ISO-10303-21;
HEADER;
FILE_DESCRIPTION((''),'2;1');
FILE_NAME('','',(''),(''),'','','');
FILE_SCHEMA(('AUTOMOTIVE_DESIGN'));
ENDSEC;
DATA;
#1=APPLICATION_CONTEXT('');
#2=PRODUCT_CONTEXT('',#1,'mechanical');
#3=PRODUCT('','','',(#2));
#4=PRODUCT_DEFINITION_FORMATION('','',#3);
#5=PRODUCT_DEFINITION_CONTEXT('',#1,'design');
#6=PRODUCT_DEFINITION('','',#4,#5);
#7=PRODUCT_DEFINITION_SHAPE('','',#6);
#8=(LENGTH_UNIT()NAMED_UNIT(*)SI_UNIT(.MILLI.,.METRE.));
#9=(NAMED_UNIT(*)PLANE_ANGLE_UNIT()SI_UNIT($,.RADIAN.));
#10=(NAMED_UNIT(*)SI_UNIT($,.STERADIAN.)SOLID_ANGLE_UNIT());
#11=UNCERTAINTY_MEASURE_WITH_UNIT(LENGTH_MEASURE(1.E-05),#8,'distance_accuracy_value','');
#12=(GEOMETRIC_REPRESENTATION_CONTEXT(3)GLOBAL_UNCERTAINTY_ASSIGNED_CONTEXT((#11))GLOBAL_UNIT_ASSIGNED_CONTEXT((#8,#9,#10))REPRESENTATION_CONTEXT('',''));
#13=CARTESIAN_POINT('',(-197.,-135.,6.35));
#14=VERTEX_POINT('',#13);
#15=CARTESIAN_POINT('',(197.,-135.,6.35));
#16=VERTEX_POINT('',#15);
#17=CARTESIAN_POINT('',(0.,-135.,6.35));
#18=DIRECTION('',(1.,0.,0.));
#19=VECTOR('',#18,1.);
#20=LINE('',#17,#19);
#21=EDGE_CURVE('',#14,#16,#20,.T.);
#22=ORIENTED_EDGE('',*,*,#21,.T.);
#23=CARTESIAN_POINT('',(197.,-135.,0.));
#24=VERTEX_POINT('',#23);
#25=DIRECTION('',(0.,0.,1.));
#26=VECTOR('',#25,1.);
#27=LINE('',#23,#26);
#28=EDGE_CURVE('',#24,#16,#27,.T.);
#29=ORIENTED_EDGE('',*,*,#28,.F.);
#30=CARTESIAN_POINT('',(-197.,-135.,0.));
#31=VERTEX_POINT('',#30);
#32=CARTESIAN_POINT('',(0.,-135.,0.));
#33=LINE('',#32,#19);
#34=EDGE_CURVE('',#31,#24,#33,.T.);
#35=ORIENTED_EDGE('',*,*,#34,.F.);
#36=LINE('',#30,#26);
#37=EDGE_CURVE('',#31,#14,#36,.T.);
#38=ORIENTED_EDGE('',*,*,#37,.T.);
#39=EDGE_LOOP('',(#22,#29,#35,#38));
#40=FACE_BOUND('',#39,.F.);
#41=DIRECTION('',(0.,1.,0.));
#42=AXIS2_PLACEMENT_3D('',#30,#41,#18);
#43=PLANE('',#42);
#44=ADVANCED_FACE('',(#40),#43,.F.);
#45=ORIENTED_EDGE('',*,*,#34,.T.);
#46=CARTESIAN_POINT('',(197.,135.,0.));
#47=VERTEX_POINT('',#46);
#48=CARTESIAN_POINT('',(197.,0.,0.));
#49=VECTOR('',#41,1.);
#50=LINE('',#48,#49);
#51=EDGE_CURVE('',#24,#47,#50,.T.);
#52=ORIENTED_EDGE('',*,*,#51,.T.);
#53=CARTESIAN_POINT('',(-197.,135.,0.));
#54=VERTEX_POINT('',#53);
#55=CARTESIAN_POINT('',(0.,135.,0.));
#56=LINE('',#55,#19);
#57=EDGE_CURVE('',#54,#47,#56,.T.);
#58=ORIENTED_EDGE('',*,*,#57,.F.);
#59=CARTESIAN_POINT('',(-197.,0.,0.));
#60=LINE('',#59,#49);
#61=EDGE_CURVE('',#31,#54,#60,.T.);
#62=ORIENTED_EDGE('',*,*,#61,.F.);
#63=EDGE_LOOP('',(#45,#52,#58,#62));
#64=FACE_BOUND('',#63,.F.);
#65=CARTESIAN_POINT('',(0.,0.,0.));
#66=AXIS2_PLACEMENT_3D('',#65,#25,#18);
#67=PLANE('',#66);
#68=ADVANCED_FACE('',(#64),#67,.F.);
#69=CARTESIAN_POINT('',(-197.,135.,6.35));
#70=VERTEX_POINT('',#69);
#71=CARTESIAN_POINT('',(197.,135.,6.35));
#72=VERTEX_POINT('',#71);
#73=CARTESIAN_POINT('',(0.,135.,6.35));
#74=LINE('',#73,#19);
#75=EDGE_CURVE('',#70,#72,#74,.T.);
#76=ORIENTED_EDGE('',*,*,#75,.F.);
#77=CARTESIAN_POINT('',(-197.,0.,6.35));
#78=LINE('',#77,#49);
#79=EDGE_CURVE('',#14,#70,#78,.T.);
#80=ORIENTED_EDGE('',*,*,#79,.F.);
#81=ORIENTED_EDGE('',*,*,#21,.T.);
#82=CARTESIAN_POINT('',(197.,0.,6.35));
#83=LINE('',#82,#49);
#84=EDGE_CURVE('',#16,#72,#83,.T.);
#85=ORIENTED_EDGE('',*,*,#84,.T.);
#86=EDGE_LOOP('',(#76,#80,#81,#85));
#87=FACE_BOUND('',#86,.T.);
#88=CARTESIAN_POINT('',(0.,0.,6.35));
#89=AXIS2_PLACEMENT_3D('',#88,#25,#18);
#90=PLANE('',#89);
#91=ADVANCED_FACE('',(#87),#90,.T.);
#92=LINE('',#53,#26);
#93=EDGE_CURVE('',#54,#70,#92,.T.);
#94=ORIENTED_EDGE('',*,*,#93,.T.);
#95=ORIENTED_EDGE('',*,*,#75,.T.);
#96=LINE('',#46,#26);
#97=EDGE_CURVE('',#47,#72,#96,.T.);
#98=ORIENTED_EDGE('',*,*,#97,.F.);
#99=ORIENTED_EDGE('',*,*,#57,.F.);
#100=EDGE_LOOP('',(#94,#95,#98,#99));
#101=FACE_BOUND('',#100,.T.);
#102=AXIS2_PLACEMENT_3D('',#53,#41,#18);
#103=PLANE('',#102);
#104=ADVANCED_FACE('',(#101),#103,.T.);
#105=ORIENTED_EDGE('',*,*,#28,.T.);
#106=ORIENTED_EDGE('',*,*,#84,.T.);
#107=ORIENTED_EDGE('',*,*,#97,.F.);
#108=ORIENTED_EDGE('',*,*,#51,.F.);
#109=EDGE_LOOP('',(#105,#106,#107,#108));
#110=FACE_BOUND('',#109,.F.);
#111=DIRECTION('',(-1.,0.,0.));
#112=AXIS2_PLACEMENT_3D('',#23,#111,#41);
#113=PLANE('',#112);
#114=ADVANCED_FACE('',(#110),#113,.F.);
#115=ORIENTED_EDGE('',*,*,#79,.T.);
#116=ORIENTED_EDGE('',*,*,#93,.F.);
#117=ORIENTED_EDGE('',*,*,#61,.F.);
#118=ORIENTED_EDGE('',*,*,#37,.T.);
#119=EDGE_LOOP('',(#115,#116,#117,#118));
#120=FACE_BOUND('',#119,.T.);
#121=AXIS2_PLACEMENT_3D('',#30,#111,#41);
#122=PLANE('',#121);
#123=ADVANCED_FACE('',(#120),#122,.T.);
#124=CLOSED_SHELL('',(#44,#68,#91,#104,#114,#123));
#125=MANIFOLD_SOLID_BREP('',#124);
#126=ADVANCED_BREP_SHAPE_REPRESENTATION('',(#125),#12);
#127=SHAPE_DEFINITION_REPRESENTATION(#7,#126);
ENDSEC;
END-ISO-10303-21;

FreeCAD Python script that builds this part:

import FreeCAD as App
import Part
import Sketcher


def add_polygon(sketch, points):
    """Adds a closed chain of lines whose ends are joined by coincident constraints."""
    first, n = sketch.GeometryCount, len(points)
    for a, b in zip(points, points[1:] + points[:1]):
        sketch.addGeometry(Part.LineSegment(App.Vector(*a, 0), App.Vector(*b, 0)), False)
    for i in range(n):
        sketch.addConstraint(Sketcher.Constraint("Coincident", first + i, 2, first + (i + 1) % n, 1))

doc = App.newDocument("Part")
params = doc.addObject("Spreadsheet::Sheet", "Params")
for row, (alias, value) in enumerate([
    ("sketch1_width", "394 mm"),
    ("sketch1_height", "270 mm"),
    ("pad1_length", "6.35 mm"),
], start=1):
    params.set(f"A{row}", alias)
    params.set(f"B{row}", "=" + value)
    params.setAlias(f"B{row}", alias)

body = doc.addObject("PartDesign::Body", "Body")

# Sketch on XY plane
sketch1 = body.newObject("Sketcher::SketchObject", "Sketch")
sketch1.AttachmentSupport = (doc.getObject("XY_Plane"), [""])
sketch1.MapMode = "FlatFace"
add_polygon(sketch1, [(-197, 135), (-197, -135), (197, -135), (197, 135)])  # lines 0-3
sketch1.addConstraint(Sketcher.Constraint("Vertical", 0))
sketch1.addConstraint(Sketcher.Constraint("Horizontal", 1))
sketch1.addConstraint(Sketcher.Constraint("Vertical", 2))
sketch1.addConstraint(Sketcher.Constraint("Horizontal", 3))
sketch1.addConstraint(Sketcher.Constraint("Symmetric", 0, 2, 2, 2, -1, 1))
sketch1.addConstraint(Sketcher.Constraint("DistanceX", 1, 1, 1, 2, 394.0))
sketch1.addConstraint(Sketcher.Constraint("DistanceY", 0, 2, 0, 1, 270.0))
sketch1.setExpression("Constraints[9]", "Params.sketch1_width")
sketch1.setExpression("Constraints[10]", "Params.sketch1_height")
pad1 = body.newObject("PartDesign::Pad", "Pad")
pad1.Profile = sketch1
pad1.setExpression("Length", "Params.pad1_length")

doc.recompute()
